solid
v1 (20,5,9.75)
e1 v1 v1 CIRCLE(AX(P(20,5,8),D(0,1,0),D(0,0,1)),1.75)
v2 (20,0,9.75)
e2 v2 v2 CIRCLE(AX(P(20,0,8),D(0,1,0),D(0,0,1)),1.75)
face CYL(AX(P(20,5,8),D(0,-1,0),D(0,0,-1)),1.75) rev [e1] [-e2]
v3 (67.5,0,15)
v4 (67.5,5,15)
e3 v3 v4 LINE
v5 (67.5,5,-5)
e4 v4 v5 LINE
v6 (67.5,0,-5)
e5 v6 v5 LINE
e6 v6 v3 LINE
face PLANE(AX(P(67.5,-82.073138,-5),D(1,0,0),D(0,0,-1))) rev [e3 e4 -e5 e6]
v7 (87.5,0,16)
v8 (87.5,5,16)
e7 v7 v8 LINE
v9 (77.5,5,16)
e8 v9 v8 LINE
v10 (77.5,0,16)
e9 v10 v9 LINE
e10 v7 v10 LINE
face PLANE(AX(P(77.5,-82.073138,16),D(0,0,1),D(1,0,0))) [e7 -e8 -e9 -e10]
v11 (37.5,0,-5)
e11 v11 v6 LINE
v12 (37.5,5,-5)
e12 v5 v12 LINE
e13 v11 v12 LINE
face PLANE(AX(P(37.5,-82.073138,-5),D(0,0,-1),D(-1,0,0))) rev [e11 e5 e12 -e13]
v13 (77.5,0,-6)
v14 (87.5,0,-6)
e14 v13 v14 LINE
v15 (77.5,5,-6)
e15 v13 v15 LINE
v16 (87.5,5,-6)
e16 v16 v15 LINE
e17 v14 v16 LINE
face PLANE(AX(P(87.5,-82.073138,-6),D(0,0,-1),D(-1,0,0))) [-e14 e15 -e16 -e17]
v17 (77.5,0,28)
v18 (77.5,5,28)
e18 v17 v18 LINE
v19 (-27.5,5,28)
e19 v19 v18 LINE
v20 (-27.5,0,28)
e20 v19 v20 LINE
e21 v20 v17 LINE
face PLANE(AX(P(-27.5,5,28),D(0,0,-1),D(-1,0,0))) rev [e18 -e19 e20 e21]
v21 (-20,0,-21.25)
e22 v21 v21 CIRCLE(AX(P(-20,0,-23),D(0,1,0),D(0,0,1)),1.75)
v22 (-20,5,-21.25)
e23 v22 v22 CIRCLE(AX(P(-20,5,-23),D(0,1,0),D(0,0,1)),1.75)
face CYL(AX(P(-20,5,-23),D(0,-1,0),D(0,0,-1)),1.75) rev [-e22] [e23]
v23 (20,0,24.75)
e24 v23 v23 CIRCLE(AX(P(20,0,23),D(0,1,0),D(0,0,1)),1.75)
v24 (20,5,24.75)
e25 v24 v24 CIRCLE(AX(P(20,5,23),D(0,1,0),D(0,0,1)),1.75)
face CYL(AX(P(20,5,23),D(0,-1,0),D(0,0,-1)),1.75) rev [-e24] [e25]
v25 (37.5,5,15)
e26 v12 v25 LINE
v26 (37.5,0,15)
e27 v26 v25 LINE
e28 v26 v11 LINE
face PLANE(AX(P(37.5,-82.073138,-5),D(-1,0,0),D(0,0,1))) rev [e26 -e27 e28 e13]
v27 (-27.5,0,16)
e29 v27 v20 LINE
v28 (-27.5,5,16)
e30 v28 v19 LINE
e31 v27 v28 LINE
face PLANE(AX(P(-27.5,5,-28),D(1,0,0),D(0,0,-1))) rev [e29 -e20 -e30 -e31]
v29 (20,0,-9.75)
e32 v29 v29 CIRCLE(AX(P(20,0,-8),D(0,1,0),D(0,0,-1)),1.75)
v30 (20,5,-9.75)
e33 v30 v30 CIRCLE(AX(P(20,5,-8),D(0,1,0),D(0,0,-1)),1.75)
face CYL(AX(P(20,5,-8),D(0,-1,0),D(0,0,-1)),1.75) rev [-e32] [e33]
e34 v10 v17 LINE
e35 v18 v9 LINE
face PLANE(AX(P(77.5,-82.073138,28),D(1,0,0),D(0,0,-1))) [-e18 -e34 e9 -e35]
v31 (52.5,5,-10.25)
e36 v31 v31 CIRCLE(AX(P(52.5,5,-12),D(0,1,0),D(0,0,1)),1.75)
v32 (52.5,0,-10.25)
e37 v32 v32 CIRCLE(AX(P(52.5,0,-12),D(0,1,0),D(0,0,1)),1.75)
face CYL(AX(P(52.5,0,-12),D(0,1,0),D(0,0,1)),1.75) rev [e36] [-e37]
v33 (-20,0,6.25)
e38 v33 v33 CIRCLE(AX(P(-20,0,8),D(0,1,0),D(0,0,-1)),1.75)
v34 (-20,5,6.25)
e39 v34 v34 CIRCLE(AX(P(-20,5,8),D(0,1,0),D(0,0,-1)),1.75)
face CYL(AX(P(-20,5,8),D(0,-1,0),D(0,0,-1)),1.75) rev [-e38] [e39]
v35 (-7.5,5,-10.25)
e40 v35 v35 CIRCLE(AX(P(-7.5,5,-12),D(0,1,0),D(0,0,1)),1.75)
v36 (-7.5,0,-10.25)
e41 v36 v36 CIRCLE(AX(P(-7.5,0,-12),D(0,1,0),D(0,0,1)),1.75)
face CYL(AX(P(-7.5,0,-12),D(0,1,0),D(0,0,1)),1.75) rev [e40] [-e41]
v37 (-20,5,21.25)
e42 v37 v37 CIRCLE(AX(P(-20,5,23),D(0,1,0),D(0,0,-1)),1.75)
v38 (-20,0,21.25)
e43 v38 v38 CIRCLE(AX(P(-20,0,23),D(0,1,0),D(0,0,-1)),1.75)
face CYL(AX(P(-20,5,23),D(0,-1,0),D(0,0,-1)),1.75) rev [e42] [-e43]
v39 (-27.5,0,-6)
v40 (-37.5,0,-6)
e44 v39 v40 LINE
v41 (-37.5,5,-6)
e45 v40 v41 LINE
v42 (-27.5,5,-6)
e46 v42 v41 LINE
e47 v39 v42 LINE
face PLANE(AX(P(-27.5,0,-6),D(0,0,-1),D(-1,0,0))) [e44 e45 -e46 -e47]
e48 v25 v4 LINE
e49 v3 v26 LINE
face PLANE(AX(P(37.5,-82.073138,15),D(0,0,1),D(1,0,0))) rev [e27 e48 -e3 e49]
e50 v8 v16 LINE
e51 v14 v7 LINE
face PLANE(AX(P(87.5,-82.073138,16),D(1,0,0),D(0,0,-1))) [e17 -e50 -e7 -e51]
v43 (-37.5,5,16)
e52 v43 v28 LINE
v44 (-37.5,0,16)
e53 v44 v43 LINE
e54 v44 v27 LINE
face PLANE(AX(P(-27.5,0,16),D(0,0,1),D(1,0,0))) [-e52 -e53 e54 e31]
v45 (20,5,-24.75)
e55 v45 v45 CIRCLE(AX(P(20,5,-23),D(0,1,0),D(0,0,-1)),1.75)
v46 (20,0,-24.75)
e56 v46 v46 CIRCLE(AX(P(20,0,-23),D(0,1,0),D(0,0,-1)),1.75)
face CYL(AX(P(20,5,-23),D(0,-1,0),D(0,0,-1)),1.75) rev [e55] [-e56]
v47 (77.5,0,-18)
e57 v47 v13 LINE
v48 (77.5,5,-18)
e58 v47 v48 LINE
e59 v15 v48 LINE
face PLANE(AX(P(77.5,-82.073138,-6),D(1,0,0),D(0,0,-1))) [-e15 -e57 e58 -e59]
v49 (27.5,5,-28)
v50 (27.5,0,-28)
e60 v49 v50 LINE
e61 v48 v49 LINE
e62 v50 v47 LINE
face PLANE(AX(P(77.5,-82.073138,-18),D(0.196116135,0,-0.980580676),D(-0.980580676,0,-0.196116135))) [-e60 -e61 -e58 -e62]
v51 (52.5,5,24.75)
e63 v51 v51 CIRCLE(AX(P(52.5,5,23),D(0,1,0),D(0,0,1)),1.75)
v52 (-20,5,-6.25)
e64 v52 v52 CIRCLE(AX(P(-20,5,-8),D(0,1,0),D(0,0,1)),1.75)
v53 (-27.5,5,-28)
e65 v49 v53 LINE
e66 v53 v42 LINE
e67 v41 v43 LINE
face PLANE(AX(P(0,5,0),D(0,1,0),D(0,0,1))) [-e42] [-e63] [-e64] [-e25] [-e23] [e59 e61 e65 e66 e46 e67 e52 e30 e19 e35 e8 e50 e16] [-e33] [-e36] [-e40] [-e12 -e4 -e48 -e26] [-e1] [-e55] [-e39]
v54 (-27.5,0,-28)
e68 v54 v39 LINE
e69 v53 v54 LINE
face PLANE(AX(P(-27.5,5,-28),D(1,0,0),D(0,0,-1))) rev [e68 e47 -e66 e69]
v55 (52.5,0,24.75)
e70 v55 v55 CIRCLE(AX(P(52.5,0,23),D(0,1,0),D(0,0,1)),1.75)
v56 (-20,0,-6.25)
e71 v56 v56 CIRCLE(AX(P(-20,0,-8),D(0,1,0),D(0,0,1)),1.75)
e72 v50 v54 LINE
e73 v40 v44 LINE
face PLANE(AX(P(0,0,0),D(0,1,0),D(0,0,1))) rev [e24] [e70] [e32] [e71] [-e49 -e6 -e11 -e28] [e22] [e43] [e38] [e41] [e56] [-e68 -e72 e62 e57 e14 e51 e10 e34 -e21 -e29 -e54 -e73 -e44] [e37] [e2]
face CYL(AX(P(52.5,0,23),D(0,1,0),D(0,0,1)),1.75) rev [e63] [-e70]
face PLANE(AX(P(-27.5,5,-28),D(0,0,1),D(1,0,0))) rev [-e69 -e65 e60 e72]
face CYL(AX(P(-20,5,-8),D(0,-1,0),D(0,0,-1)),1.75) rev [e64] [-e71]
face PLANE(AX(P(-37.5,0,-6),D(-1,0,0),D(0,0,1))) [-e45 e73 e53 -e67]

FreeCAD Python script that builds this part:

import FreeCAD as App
import Part
import Sketcher
from FreeCAD import Vector

doc = App.newDocument("Part")
params = doc.addObject("Spreadsheet::Sheet", "Params")
for row, (alias, value) in enumerate([
    ("sketch1_diameter", "3.5 mm"),
    ("sketch1_width", "55 mm"),
    ("sketch1_height", "56 mm"),
    ("pad1_length", "5 mm"),
    ("sketch2_width", "50 mm"),
    ("sketch2_width2", "10 mm"),
    ("sketch2_width3", "30 mm"),
    ("sketch2_height", "56 mm"),
    ("sketch2_height2", "12 mm"),
    ("pad2_length", "5 mm"),
    ("sketch3_width", "10 mm"),
    ("sketch3_height", "22 mm"),
    ("pad3_length", "5 mm"),
    ("sketch4_diameter", "3.5 mm"),
    ("pocket1_length", "5 mm"),
], start=1):
    params.set(f"A{row}", alias)
    params.set(f"B{row}", "=" + value)
    params.setAlias(f"B{row}", alias)

body = doc.addObject("PartDesign::Body", "Body")

# Sketch on XZ plane
sketch1 = body.newObject("Sketcher::SketchObject", "Sketch")
sketch1.AttachmentSupport = (doc.getObject("XZ_Plane"), [""])
sketch1.MapMode = "FlatFace"
sketch1.addGeometry([
    Part.LineSegment(Vector(-27.5, -28, 0), Vector(-27.5, 28, 0)),  # 0
    Part.LineSegment(Vector(-27.5, 28, 0), Vector(27.5, 28, 0)),  # 1
    Part.LineSegment(Vector(27.5, 28, 0), Vector(27.5, -28, 0)),  # 2
    Part.LineSegment(Vector(27.5, -28, 0), Vector(-27.5, -28, 0)),  # 3
    Part.Circle(Vector(-20, 23, 0), Vector(0, 0, 1), 1.75),  # 4
    Part.Circle(Vector(-20, 8, 0), Vector(0, 0, 1), 1.75),  # 5
    Part.Circle(Vector(20, 23, 0), Vector(0, 0, 1), 1.75),  # 6
    Part.Circle(Vector(20, 8, 0), Vector(0, 0, 1), 1.75),  # 7
    Part.Circle(Vector(-20, -8, 0), Vector(0, 0, 1), 1.75),  # 8
    Part.Circle(Vector(-20, -23, 0), Vector(0, 0, 1), 1.75),  # 9
    Part.Circle(Vector(20, -8, 0), Vector(0, 0, 1), 1.75),  # 10
    Part.Circle(Vector(20, -23, 0), Vector(0, 0, 1), 1.75),  # 11
], False)
sketch1.addConstraint([
    Sketcher.Constraint("Coincident", 0, 2, 1, 1),
    Sketcher.Constraint("Coincident", 1, 2, 2, 1),
    Sketcher.Constraint("Coincident", 2, 2, 3, 1),
    Sketcher.Constraint("Coincident", 3, 2, 0, 1),
    Sketcher.Constraint("Vertical", 0),
    Sketcher.Constraint("Horizontal", 1),
    Sketcher.Constraint("Vertical", 2),
    Sketcher.Constraint("Horizontal", 3),
    Sketcher.Constraint("Equal", 4, 5),
    Sketcher.Constraint("Equal", 5, 6),
    Sketcher.Constraint("Equal", 6, 7),
    Sketcher.Constraint("Equal", 7, 8),
    Sketcher.Constraint("Equal", 8, 9),
    Sketcher.Constraint("Equal", 9, 10),
    Sketcher.Constraint("Equal", 10, 11),
    Sketcher.Constraint("Symmetric", 7, 3, 8, 3, -1, 1),
    Sketcher.Constraint("Symmetric", 6, 3, 9, 3, -1, 1),
    Sketcher.Constraint("Symmetric", 5, 3, 10, 3, -1, 1),
    Sketcher.Constraint("Symmetric", 4, 3, 11, 3, -1, 1),
    Sketcher.Constraint("Symmetric", 0, 2, 2, 2, -1, 1),
    Sketcher.Constraint("Symmetric", 4, 3, 6, 3, -2),
    Sketcher.Constraint("Symmetric", 5, 3, 7, 3, -2),
    Sketcher.Constraint("Vertical", 4, 3, 5, 3),
    Sketcher.Constraint("Diameter", 4, 3.5),
    Sketcher.Constraint("DistanceX", 1, 1, 1, 2, 55.0),
    Sketcher.Constraint("DistanceY", 0, 1, 0, 2, 56.0),
    Sketcher.Constraint("DistanceX", 4, 3, -1, 1, 20.0),
    Sketcher.Constraint("DistanceY", -1, 1, 4, 3, 23.0),
    Sketcher.Constraint("DistanceY", -1, 1, 5, 3, 8.0),
])
sketch1.setExpression("Constraints[23]", "Params.sketch1_diameter")
sketch1.setExpression("Constraints[24]", "Params.sketch1_width")
sketch1.setExpression("Constraints[25]", "Params.sketch1_height")
pad1 = body.newObject("PartDesign::Pad", "Pad")
pad1.Profile = sketch1
pad1.setExpression("Length", "Params.pad1_length")
pad1.Reversed = True

# Sketch on XZ plane
sketch2 = body.newObject("Sketcher::SketchObject", "Sketch001")
sketch2.AttachmentSupport = (doc.getObject("XZ_Plane"), [""])
sketch2.MapMode = "FlatFace"
sketch2.AttachmentOffset = App.Placement(Vector(0, 0, -5), App.Rotation())
sketch2.addGeometry([
    Part.LineSegment(Vector(27.5, -28, 0), Vector(27.5, 28, 0)),  # 0
    Part.LineSegment(Vector(27.5, 28, 0), Vector(77.5, 28, 0)),  # 1
    Part.LineSegment(Vector(77.5, 28, 0), Vector(77.5, 16, 0)),  # 2
    Part.LineSegment(Vector(77.5, 16, 0), Vector(87.5, 16, 0)),  # 3
    Part.LineSegment(Vector(87.5, 16, 0), Vector(87.5, -6, 0)),  # 4
    Part.LineSegment(Vector(87.5, -6, 0), Vector(77.5, -6, 0)),  # 5
    Part.LineSegment(Vector(77.5, -6, 0), Vector(77.5, -18, 0)),  # 6
    Part.LineSegment(Vector(77.5, -18, 0), Vector(27.5, -28, 0)),  # 7
    Part.LineSegment(Vector(67.5, 15, 0), Vector(37.5, 15, 0)),  # 8
    Part.LineSegment(Vector(37.5, 15, 0), Vector(37.5, -5, 0)),  # 9
    Part.LineSegment(Vector(37.5, -5, 0), Vector(67.5, -5, 0)),  # 10
    Part.LineSegment(Vector(67.5, -5, 0), Vector(67.5, 15, 0)),  # 11
], False)
sketch2.addConstraint([
    Sketcher.Constraint("Coincident", 0, 2, 1, 1),
    Sketcher.Constraint("Coincident", 1, 2, 2, 1),
    Sketcher.Constraint("Coincident", 2, 2, 3, 1),
    Sketcher.Constraint("Coincident", 3, 2, 4, 1),
    Sketcher.Constraint("Coincident", 4, 2, 5, 1),
    Sketcher.Constraint("Coincident", 5, 2, 6, 1),
    Sketcher.Constraint("Coincident", 6, 2, 7, 1),
    Sketcher.Constraint("Coincident", 7, 2, 0, 1),
    Sketcher.Constraint("Coincident", 8, 2, 9, 1),
    Sketcher.Constraint("Coincident", 9, 2, 10, 1),
    Sketcher.Constraint("Coincident", 10, 2, 11, 1),
    Sketcher.Constraint("Coincident", 11, 2, 8, 1),
    Sketcher.Constraint("Vertical", 0),
    Sketcher.Constraint("Horizontal", 1),
    Sketcher.Constraint("Vertical", 2),
    Sketcher.Constraint("Horizontal", 3),
    Sketcher.Constraint("Vertical", 4),
    Sketcher.Constraint("Horizontal", 5),
    Sketcher.Constraint("Vertical", 6),
    Sketcher.Constraint("Horizontal", 8),
    Sketcher.Constraint("Vertical", 9),
    Sketcher.Constraint("Horizontal", 10),
    Sketcher.Constraint("Vertical", 11),
    Sketcher.Constraint("Vertical", 2, 2, 5, 2),
    Sketcher.Constraint("Equal", 2, 6),
    Sketcher.Constraint("DistanceX", 1, 1, 1, 2, 50.0),
    Sketcher.Constraint("DistanceX", 3, 1, 3, 2, 10.0),
    Sketcher.Constraint("DistanceX", 8, 2, 8, 1, 30.0),
    Sketcher.Constraint("DistanceY", 0, 1, 0, 2, 56.0),
    Sketcher.Constraint("DistanceY", 2, 2, 2, 1, 12.0),
    Sketcher.Constraint("DistanceY", 4, 2, 4, 1, 22.0),
    Sketcher.Constraint("DistanceY", 9, 2, 9, 1, 20.0),
    Sketcher.Constraint("DistanceY", -1, 1, 0, 2, 28.0),
    Sketcher.Constraint("DistanceY", -1, 1, 8, 2, 15.0),
    Sketcher.Constraint("DistanceX", 0, 2, 8, 2, 10.0),
    Sketcher.Constraint("DistanceX", -1, 1, 0, 2, 27.5),
])
sketch2.setExpression("Constraints[25]", "Params.sketch2_width")
sketch2.setExpression("Constraints[26]", "Params.sketch2_width2")
sketch2.setExpression("Constraints[27]", "Params.sketch2_width3")
sketch2.setExpression("Constraints[28]", "Params.sketch2_height")
sketch2.setExpression("Constraints[29]", "Params.sketch2_height2")
pad2 = body.newObject("PartDesign::Pad", "Pad001")
pad2.Profile = sketch2
pad2.setExpression("Length", "Params.pad2_length")

# Sketch on XZ plane
sketch3 = body.newObject("Sketcher::SketchObject", "Sketch002")
sketch3.AttachmentSupport = (doc.getObject("XZ_Plane"), [""])
sketch3.MapMode = "FlatFace"
sketch3.AttachmentOffset = App.Placement(Vector(0, 0, -5), App.Rotation())
sketch3.addGeometry([
    Part.LineSegment(Vector(-37.5, -6, 0), Vector(-37.5, 16, 0)),
    Part.LineSegment(Vector(-37.5, 16, 0), Vector(-27.5, 16, 0)),
    Part.LineSegment(Vector(-27.5, 16, 0), Vector(-27.5, -6, 0)),
    Part.LineSegment(Vector(-27.5, -6, 0), Vector(-37.5, -6, 0)),
], False)
sketch3.addConstraint([
    Sketcher.Constraint("Coincident", 0, 2, 1, 1),
    Sketcher.Constraint("Coincident", 1, 2, 2, 1),
    Sketcher.Constraint("Coincident", 2, 2, 3, 1),
    Sketcher.Constraint("Coincident", 3, 2, 0, 1),
    Sketcher.Constraint("Vertical", 0),
    Sketcher.Constraint("Horizontal", 1),
    Sketcher.Constraint("Vertical", 2),
    Sketcher.Constraint("Horizontal", 3),
    Sketcher.Constraint("DistanceX", 1, 1, 1, 2, 10.0),
    Sketcher.Constraint("DistanceY", 0, 1, 0, 2, 22.0),
    Sketcher.Constraint("DistanceY", -1, 1, 0, 2, 16.0),
    Sketcher.Constraint("DistanceX", 0, 2, -1, 1, 37.5),
])
sketch3.setExpression("Constraints[8]", "Params.sketch3_width")
sketch3.setExpression("Constraints[9]", "Params.sketch3_height")
pad3 = body.newObject("PartDesign::Pad", "Pad002")
pad3.Profile = sketch3
pad3.setExpression("Length", "Params.pad3_length")

# Sketch on XZ plane
sketch4 = body.newObject("Sketcher::SketchObject", "Sketch003")
sketch4.AttachmentSupport = (doc.getObject("XZ_Plane"), [""])
sketch4.MapMode = "FlatFace"
sketch4.AttachmentOffset = App.Placement(Vector(0, 0, -5), App.Rotation())
sketch4.addGeometry([
    Part.Circle(Vector(-7.5, -12, 0), Vector(0, 0, 1), 1.75),
    Part.Circle(Vector(52.5, -12, 0), Vector(0, 0, 1), 1.75),
    Part.Circle(Vector(52.5, 23, 0), Vector(0, 0, 1), 1.75),
], False)
sketch4.addConstraint([
    Sketcher.Constraint("Equal", 0, 1),
    Sketcher.Constraint("Equal", 1, 2),
    Sketcher.Constraint("Horizontal", 0, 3, 1, 3),
    Sketcher.Constraint("Vertical", 1, 3, 2, 3),
    Sketcher.Constraint("Diameter", 0, 3.5),
    Sketcher.Constraint("DistanceY", 0, 3, -1, 1, 12.0),
    Sketcher.Constraint("DistanceY", -1, 1, 2, 3, 23.0),
    Sketcher.Constraint("DistanceX", 0, 3, 1, 3, 60.0),
    Sketcher.Constraint("DistanceX", 0, 3, -1, 1, 7.5),
])
sketch4.setExpression("Constraints[4]", "Params.sketch4_diameter")
pocket1 = body.newObject("PartDesign::Pocket", "Pocket")
pocket1.Profile = sketch4
pocket1.setExpression("Length", "Params.pocket1_length")
pocket1.Reversed = True

doc.recompute()
